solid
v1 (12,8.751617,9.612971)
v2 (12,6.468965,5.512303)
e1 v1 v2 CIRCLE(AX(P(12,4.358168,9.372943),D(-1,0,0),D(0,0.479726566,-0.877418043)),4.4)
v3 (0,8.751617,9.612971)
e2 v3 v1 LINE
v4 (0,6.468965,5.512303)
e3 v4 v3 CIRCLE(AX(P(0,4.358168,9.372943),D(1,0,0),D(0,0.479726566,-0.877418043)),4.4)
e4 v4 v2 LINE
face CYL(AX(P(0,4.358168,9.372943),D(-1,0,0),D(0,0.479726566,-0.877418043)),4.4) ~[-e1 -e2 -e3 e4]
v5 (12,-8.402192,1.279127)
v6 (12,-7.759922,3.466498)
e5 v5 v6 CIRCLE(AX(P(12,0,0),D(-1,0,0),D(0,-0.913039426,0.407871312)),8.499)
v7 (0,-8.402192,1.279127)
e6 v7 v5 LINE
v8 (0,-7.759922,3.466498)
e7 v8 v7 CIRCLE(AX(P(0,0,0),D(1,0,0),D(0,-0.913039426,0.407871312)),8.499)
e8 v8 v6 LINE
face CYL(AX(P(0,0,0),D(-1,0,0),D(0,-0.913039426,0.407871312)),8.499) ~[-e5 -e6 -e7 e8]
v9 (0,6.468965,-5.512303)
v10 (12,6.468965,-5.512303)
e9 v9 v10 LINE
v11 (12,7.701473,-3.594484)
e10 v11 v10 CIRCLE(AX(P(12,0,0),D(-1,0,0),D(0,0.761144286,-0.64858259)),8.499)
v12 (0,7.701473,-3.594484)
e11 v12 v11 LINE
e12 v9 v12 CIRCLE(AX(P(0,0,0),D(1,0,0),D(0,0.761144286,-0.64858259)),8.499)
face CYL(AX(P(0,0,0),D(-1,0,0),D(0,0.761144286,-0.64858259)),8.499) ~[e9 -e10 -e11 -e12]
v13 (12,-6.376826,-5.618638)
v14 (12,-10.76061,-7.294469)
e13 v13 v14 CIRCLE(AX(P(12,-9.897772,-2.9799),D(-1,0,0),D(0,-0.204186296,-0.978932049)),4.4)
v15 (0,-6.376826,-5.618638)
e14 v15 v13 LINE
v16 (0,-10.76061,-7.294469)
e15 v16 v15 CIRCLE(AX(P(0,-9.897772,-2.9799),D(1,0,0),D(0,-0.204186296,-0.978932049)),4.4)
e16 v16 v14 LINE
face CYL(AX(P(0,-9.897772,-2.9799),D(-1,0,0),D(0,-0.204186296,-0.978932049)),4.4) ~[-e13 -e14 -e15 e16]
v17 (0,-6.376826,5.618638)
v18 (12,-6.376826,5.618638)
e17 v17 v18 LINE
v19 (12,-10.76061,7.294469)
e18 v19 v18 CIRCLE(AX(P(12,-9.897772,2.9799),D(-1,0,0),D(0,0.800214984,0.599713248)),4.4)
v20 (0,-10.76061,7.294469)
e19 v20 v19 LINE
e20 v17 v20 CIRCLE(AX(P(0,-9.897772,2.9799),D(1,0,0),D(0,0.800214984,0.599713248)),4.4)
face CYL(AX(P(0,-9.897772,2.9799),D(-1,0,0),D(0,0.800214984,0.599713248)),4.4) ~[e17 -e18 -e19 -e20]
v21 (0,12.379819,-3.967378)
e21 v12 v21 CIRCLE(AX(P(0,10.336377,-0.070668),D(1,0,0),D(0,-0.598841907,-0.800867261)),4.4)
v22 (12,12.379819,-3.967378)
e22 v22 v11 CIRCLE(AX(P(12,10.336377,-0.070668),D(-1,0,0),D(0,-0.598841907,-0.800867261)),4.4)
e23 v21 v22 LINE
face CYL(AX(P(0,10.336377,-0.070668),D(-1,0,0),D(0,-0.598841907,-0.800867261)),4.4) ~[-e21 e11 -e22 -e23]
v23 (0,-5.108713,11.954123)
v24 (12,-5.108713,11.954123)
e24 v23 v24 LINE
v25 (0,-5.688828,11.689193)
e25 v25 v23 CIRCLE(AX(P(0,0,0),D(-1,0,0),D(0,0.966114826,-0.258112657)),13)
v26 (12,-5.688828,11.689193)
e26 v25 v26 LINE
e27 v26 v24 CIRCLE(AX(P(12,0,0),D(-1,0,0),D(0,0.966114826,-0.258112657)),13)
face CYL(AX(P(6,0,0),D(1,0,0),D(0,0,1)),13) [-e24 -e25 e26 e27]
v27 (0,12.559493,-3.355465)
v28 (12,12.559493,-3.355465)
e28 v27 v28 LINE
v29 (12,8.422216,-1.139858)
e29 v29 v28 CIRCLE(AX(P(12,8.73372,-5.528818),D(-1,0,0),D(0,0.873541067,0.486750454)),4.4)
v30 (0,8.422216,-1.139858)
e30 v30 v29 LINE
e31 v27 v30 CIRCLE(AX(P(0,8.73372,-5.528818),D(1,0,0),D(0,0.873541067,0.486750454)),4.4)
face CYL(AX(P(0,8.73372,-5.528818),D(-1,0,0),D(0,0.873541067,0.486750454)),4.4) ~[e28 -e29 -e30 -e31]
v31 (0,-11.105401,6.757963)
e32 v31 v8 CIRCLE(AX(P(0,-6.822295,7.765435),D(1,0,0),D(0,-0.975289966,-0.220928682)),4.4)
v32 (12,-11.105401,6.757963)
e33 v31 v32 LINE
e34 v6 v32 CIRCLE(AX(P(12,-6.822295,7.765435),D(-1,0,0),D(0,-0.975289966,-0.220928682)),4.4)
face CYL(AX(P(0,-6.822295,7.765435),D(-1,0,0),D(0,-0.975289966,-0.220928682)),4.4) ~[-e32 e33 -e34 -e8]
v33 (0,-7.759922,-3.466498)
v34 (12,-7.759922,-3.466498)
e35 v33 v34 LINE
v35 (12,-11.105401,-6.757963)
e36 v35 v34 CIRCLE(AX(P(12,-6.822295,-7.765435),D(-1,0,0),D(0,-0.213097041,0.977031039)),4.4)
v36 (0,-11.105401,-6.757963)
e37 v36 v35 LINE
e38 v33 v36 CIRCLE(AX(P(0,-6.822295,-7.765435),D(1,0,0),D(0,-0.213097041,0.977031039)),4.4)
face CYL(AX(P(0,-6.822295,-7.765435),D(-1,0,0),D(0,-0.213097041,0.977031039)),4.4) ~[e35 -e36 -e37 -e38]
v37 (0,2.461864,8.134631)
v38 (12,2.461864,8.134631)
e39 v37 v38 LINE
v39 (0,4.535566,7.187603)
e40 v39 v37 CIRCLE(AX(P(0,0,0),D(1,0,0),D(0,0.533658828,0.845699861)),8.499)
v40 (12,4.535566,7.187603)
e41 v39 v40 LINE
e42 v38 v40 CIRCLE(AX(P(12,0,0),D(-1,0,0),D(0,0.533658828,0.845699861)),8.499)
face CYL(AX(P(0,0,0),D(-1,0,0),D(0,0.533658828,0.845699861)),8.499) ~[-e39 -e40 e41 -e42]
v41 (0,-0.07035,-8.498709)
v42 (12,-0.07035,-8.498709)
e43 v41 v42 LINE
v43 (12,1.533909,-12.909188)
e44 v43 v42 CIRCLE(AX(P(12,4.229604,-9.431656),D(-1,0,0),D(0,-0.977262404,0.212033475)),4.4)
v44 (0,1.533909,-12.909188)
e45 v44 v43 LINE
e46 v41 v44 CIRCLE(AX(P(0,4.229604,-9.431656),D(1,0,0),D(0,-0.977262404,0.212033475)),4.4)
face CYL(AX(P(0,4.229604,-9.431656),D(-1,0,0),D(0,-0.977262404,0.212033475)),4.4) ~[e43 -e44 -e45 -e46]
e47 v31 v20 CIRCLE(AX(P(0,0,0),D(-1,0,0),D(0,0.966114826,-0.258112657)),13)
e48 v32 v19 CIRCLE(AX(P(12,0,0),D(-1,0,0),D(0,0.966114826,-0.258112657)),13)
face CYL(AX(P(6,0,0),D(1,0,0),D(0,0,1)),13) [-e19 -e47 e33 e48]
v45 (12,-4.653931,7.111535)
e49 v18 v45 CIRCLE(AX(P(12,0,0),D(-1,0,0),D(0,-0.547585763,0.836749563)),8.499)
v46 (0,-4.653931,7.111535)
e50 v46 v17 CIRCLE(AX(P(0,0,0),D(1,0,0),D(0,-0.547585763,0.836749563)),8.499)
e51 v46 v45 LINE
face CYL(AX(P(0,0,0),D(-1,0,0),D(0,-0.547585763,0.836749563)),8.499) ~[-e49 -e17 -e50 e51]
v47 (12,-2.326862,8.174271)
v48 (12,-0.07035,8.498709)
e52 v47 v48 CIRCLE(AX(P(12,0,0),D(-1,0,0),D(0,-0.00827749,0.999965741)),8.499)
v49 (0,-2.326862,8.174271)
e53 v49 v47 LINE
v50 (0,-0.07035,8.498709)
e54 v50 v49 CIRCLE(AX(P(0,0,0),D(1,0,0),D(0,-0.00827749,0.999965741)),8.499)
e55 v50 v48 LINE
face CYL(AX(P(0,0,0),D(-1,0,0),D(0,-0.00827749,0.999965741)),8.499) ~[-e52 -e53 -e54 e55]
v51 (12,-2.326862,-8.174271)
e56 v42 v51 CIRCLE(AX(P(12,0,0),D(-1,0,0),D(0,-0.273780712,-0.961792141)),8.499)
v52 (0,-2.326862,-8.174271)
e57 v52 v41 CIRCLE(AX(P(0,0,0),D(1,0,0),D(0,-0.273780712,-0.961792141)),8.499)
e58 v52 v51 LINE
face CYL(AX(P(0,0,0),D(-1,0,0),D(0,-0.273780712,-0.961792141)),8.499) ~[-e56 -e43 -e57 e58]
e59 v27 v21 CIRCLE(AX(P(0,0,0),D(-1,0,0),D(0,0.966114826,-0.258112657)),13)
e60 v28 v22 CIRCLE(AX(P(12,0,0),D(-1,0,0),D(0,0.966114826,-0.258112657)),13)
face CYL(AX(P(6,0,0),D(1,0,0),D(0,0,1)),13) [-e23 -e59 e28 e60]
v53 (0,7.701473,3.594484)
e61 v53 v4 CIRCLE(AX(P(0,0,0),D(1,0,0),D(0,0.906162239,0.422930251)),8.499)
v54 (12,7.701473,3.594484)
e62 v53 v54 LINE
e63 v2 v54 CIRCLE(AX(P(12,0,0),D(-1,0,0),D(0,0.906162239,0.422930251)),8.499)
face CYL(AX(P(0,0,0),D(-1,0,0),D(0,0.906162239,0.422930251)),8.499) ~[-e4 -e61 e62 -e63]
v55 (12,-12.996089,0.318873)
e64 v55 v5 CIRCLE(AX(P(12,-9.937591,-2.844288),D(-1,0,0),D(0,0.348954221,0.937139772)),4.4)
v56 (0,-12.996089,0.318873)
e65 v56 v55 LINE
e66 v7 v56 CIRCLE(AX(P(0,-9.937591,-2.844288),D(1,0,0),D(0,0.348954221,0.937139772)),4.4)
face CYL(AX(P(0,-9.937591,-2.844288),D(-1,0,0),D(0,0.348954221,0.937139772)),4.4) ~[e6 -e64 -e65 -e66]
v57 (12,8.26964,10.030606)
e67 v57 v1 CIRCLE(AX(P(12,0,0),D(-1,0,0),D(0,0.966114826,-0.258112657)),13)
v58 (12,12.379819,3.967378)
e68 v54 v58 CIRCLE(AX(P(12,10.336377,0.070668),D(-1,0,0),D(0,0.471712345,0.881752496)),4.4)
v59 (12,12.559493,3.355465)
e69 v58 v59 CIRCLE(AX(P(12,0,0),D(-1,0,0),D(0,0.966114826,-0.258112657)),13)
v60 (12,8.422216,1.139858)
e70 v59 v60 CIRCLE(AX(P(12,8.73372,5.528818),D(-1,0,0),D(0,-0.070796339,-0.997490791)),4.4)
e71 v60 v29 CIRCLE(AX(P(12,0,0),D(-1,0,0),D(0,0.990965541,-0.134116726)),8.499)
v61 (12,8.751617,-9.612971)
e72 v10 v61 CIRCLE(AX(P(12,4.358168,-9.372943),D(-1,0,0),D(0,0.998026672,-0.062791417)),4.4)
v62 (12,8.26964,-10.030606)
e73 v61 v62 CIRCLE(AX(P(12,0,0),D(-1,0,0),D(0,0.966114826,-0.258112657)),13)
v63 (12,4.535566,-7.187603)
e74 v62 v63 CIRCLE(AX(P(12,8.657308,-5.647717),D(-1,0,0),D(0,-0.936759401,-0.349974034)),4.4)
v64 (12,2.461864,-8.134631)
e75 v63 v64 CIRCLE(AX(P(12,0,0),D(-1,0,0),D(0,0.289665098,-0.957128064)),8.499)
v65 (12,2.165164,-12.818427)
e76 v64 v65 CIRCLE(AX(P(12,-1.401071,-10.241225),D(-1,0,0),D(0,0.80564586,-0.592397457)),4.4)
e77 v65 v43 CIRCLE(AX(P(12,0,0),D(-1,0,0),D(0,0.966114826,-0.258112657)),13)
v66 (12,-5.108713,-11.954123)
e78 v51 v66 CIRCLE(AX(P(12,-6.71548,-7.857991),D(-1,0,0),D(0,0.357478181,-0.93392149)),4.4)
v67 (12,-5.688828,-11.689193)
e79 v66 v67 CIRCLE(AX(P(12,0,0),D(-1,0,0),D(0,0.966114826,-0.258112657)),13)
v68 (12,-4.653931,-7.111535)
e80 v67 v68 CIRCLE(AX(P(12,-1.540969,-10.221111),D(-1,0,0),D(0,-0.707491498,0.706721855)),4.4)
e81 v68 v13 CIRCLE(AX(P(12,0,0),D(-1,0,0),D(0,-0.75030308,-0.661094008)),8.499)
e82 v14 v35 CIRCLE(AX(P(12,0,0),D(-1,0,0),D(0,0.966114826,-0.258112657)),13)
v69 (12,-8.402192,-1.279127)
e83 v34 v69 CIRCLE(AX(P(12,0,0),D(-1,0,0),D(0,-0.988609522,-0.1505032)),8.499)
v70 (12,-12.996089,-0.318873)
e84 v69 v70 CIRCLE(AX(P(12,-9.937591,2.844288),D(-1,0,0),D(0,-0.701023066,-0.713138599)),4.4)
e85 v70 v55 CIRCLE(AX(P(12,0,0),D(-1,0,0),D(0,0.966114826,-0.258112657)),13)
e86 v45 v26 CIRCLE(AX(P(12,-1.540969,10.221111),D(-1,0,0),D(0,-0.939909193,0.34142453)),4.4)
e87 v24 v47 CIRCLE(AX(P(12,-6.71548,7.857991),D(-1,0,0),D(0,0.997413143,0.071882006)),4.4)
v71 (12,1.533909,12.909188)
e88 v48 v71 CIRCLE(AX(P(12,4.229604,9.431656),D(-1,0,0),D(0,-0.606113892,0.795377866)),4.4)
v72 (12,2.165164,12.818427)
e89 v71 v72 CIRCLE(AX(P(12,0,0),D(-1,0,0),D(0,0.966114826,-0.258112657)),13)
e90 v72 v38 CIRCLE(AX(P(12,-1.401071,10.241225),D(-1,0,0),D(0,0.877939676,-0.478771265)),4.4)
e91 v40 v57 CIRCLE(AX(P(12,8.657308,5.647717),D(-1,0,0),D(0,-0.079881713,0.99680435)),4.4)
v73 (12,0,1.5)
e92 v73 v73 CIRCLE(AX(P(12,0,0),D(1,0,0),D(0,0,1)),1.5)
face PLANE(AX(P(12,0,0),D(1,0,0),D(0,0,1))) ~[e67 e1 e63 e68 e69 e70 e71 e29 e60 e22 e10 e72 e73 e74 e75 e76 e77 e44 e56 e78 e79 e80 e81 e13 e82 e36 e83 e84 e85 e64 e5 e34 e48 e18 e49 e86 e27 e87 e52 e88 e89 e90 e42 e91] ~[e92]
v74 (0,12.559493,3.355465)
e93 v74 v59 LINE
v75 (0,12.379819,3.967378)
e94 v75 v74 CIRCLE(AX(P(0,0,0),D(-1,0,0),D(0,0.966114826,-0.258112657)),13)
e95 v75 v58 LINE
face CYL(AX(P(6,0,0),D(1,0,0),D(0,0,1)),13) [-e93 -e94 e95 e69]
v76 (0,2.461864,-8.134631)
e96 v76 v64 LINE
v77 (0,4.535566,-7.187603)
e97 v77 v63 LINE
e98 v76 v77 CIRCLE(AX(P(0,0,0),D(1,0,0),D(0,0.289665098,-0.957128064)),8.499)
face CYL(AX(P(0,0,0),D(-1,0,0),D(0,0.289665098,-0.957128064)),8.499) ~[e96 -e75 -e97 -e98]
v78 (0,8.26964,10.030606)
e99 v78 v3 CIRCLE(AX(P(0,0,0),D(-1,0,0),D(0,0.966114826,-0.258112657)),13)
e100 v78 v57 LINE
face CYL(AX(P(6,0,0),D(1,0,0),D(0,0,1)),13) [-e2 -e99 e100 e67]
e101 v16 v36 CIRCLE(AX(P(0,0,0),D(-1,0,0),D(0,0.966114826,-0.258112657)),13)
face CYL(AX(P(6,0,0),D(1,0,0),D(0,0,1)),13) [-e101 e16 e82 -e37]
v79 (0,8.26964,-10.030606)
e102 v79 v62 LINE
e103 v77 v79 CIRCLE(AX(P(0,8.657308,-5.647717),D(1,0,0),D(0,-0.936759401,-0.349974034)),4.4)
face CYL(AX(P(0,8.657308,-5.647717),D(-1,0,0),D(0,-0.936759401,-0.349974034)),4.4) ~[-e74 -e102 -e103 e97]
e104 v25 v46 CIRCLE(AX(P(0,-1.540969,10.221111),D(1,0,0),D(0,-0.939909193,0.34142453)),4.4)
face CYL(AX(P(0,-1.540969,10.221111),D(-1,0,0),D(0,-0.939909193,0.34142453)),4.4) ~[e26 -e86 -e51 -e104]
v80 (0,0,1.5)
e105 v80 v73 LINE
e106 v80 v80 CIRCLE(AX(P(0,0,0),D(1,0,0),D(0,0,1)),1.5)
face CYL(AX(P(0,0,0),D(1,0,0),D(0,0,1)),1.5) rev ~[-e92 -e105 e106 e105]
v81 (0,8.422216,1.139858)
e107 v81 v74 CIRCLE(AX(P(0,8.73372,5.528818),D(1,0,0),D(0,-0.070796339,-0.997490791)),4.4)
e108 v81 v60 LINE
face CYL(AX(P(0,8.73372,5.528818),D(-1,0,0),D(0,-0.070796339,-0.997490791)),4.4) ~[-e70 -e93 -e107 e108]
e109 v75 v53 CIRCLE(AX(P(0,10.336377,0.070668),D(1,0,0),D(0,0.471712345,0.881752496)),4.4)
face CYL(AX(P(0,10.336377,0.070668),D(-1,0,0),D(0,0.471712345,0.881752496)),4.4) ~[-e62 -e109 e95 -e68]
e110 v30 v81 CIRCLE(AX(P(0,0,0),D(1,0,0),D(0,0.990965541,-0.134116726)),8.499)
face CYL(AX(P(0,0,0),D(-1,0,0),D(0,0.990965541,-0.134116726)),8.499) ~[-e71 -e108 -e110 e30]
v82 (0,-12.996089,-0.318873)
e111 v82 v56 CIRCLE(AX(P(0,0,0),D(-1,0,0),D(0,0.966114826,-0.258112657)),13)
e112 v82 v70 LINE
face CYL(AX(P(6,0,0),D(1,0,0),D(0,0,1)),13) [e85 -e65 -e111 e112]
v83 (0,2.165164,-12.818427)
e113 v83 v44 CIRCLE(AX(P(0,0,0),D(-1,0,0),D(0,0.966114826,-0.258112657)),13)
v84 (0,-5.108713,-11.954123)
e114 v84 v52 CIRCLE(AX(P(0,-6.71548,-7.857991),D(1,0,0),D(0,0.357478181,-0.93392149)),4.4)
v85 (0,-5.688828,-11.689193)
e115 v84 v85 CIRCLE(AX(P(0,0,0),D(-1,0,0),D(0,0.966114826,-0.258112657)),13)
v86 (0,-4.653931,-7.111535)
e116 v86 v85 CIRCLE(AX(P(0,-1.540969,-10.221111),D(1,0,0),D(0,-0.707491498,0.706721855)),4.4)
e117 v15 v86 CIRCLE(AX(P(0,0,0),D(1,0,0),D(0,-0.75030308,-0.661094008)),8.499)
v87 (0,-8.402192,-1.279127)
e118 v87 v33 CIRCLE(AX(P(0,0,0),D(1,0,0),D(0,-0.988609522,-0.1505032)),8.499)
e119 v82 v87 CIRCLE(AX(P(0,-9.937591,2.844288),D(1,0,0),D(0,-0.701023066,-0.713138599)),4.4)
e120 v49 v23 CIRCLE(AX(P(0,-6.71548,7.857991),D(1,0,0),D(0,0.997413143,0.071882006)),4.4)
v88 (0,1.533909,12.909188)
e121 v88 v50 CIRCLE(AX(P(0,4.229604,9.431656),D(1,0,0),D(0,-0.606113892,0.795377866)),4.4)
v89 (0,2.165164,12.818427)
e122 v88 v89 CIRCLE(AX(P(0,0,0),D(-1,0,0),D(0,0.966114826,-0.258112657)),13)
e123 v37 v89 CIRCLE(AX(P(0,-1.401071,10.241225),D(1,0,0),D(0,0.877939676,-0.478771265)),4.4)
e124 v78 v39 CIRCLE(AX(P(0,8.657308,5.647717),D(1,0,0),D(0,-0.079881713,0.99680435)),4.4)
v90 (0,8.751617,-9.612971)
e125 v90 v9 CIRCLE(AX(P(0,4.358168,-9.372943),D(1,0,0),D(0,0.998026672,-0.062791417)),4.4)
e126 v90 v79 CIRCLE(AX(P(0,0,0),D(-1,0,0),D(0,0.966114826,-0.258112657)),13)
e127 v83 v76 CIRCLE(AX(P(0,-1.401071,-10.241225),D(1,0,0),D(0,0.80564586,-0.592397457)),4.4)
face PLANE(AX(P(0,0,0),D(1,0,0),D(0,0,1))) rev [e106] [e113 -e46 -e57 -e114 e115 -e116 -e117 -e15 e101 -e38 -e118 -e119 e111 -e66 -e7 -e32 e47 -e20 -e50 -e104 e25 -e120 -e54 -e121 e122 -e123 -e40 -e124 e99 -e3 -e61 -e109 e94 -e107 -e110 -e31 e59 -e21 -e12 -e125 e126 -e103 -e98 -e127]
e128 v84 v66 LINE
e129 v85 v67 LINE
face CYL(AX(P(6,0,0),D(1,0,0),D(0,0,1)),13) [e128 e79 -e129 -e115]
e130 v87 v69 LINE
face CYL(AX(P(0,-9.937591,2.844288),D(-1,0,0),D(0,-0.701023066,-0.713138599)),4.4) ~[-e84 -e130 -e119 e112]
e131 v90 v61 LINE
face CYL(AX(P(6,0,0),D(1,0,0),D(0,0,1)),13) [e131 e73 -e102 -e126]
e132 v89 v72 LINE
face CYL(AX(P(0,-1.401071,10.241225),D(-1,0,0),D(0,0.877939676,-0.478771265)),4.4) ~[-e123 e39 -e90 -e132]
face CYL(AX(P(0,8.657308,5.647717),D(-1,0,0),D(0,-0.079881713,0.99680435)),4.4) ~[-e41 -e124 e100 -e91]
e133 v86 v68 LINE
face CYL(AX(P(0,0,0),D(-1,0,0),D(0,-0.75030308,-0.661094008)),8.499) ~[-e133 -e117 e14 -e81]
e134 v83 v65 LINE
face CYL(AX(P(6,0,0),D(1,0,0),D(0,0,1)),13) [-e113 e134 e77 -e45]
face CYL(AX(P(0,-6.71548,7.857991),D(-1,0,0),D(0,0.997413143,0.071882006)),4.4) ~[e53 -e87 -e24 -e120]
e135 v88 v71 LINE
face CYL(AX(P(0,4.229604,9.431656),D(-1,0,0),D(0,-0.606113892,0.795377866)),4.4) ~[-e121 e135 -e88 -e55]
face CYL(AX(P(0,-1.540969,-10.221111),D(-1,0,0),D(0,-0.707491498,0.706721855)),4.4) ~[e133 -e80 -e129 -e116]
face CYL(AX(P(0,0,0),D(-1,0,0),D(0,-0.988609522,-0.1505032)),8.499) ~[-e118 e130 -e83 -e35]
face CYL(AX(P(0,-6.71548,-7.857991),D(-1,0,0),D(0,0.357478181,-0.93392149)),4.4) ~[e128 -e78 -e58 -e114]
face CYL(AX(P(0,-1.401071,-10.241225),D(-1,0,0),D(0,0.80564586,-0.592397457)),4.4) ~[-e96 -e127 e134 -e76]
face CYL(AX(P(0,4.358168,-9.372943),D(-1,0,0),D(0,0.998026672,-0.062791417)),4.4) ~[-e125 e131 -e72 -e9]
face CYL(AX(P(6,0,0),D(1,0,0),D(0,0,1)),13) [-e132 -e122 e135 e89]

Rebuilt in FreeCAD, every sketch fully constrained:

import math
import FreeCAD as App
import Part
import Sketcher

V = App.Vector
Q = App.Units.Quantity


def add_polygon(sketch, points):
    """Adds a closed chain of lines whose ends are joined by coincident constraints."""
    first, n = sketch.GeometryCount, len(points)
    for a, b in zip(points, points[1:] + points[:1]):
        sketch.addGeometry(Part.LineSegment(App.Vector(*a, 0), App.Vector(*b, 0)), False)
    for i in range(n):
        sketch.addConstraint(Sketcher.Constraint("Coincident", first + i, 2, first + (i + 1) % n, 1))

doc = App.newDocument("Part")
params = doc.addObject("Spreadsheet::Sheet", "Params")
for row, (alias, value) in enumerate([
    ("sketch1_width", "12 mm"),
    ("sketch1_height", "13 mm"),
    ("revolution_angle", "360 deg"),
    ("sketch2_radius", "4.4 mm"),
    ("sketch3_diameter", "3 mm"),
    ("pocket2_length", "100.000102 mm"),
], start=1):
    params.set(f"A{row}", alias)
    params.set(f"B{row}", "=" + value)
    params.setAlias(f"B{row}", alias)

body = doc.addObject("PartDesign::Body", "Body")

sketch1 = body.newObject("Sketcher::SketchObject", "Sketch")
sketch1.AttachmentSupport = (doc.getObject("XZ_Plane"), [""])
sketch1.MapMode = "FlatFace"
add_polygon(sketch1, [(0, -13), (0, 0), (12, 0), (12, -13)])
sketch1.addConstraint([
    Sketcher.Constraint("Vertical", 0),
    Sketcher.Constraint("Horizontal", 1),
    Sketcher.Constraint("Vertical", 2),
    Sketcher.Constraint("Horizontal", 3),
    Sketcher.Constraint("Coincident", 0, 2, -1, 1),
    Sketcher.Constraint("DistanceX", 1, 1, 1, 2, Q("12 mm")),
    Sketcher.Constraint("DistanceY", 0, 1, 0, 2, Q("13 mm")),
])
sketch1.setExpression("Constraints[9]", "Params.sketch1_width")
sketch1.setExpression("Constraints[10]", "Params.sketch1_height")
revolution = body.newObject("PartDesign::Revolution", "Revolution")
revolution.Profile = sketch1
revolution.ReferenceAxis = (sketch1, ["H_Axis"])
revolution.setExpression("Angle", "Params.revolution_angle")

sketch2 = body.newObject("Sketcher::SketchObject", "Sketch001")
sketch2.AttachmentSupport = (doc.getObject("YZ_Plane"), [""])
sketch2.MapMode = "FlatFace"
sketch2.addGeometry([
    Part.ArcOfCircle(Part.Circle(V(0, 0, 0), V(0, 0, 1), 8.5), math.radians(-7.71), math.radians(7.71)),
    Part.ArcOfCircle(Part.Circle(V(8.7, -5.5, 0), V(0, 0, 1), 4.4), math.radians(29), math.radians(94)),
    Part.ArcOfCircle(Part.Circle(V(0, 0, 0), V(0, 0, 1), 13), math.radians(-15), math.radians(15)),
    Part.ArcOfCircle(Part.Circle(V(8.7, 5.5, 0), V(0, 0, 1), 4.4), math.radians(-94), math.radians(-29)),
], False)
sketch2.addConstraint([
    Sketcher.Constraint("Coincident", 0, 1, 1, 2),
    Sketcher.Constraint("Coincident", 1, 1, 2, 1),
    Sketcher.Constraint("Coincident", 2, 2, 3, 2),
    Sketcher.Constraint("Coincident", 3, 1, 0, 2),
    Sketcher.Constraint("Coincident", 0, 3, -1, 1),
    Sketcher.Constraint("Coincident", 2, 3, -1, 1),
    Sketcher.Constraint("Equal", 1, 3),
    Sketcher.Constraint("Symmetric", 1, 3, 3, 3, -1),
    Sketcher.Constraint("Radius", 1, Q("4.4 mm")),
    Sketcher.Constraint("Radius", 0, Q("8.499 mm")),
    Sketcher.Constraint("Radius", 2, Q("13.0254 mm")),
    Sketcher.Constraint("DistanceX", -1, 1, 1, 1, Q("12.577301 mm")),
    Sketcher.Constraint("DistanceY", 2, 2, 3, 3, Q("2.141702 mm")),
])
sketch2.setExpression("Constraints[8]", "Params.sketch2_radius")
pocket1 = body.newObject("PartDesign::Pocket", "Pocket")
pocket1.Profile = sketch2
pocket1.Type = "ThroughAll"
pocket1.Reversed = True
doc.recompute()

polarpattern = body.newObject("PartDesign::PolarPattern", "PolarPattern")
polarpattern.Originals = [pocket1]
polarpattern.Axis = (doc.getObject("X_Axis"), [""])
polarpattern.Angle = 360
polarpattern.Occurrences = 11
body.Tip = polarpattern

sketch3 = body.newObject("Sketcher::SketchObject", "Sketch002")
sketch3.AttachmentSupport = (doc.getObject("YZ_Plane"), [""])
sketch3.MapMode = "FlatFace"
sketch3.addGeometry(Part.Circle(V(0, 0, 0), V(0, 0, 1), 1.5), False)
sketch3.addConstraint([
    Sketcher.Constraint("Coincident", 0, 3, -1, 1),
    Sketcher.Constraint("Diameter", 0, Q("3 mm")),
])
sketch3.setExpression("Constraints[1]", "Params.sketch3_diameter")
pocket2 = body.newObject("PartDesign::Pocket", "Pocket001")
pocket2.Profile = sketch3
pocket2.setExpression("Length", "Params.pocket2_length")
pocket2.Midplane = True

doc.recompute()
